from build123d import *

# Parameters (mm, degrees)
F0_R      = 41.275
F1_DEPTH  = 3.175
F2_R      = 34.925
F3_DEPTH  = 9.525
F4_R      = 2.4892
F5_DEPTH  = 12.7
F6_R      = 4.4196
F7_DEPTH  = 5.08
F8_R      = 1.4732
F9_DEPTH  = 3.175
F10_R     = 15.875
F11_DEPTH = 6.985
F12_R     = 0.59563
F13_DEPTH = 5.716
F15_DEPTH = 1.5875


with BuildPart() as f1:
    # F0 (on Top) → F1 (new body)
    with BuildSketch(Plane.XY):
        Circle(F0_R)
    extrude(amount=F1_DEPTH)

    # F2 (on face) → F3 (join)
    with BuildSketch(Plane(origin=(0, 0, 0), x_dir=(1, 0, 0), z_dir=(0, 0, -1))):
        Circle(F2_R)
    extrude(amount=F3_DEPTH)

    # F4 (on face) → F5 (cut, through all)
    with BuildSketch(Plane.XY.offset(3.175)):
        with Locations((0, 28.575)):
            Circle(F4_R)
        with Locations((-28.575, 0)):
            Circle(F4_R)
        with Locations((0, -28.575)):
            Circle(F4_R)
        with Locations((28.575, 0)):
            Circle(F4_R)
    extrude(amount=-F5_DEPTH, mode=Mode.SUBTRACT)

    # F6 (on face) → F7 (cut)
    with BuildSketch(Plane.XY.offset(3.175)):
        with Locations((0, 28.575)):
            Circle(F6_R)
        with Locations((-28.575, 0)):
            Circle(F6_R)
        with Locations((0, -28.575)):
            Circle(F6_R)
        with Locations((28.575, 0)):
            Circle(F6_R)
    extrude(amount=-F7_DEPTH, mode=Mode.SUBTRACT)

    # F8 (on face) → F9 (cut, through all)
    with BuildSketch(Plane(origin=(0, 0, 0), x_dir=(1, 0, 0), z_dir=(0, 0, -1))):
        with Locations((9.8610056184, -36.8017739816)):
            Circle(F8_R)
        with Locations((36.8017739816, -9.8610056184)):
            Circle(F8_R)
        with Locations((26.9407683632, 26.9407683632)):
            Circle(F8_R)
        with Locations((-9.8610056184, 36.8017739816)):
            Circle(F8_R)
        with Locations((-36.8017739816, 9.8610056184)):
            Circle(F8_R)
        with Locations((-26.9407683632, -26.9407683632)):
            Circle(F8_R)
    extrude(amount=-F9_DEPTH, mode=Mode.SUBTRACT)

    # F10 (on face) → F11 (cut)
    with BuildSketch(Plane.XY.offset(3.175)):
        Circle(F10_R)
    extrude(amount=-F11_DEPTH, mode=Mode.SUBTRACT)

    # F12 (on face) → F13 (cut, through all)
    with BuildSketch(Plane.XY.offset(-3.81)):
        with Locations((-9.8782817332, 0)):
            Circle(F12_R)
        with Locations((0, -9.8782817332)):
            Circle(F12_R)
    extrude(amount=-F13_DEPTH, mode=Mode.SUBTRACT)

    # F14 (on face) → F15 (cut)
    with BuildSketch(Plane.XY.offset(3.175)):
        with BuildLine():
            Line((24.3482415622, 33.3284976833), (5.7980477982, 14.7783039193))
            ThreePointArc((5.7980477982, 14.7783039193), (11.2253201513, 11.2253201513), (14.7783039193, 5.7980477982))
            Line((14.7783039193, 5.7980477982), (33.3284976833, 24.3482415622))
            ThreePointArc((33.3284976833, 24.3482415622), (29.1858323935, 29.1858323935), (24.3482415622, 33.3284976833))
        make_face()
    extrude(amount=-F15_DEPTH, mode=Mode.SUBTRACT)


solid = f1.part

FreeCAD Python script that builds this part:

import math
import FreeCAD as App
import Part
import Sketcher
from FreeCAD import Vector
Q = App.Units.Quantity

doc = App.newDocument("Part")
body = doc.addObject("PartDesign::Body", "Body")

# Sketch on XY plane
sketch1 = body.newObject("Sketcher::SketchObject", "Sketch")
sketch1.AttachmentSupport = (doc.getObject("XY_Plane"), [""])
sketch1.MapMode = "FlatFace"
sketch1.addGeometry(Part.Circle(Vector(0, 0, 0), Vector(0, 0, 1), 41.275), False)
sketch1.addConstraint([
    Sketcher.Constraint("Coincident", 0, 3, -1, 1),
    Sketcher.Constraint("Diameter", 0, Q("3.25 in")),
])
pad1 = body.newObject("PartDesign::Pad", "Pad")
pad1.Profile = sketch1
pad1.Length = Q("0.125 in")

# Sketch on XY plane
sketch2 = body.newObject("Sketcher::SketchObject", "Sketch001")
sketch2.AttachmentSupport = (doc.getObject("XY_Plane"), [""])
sketch2.MapMode = "FlatFace"
sketch2.addGeometry(Part.Circle(Vector(0, 0, 0), Vector(0, 0, 1), 34.925), False)
sketch2.addConstraint([
    Sketcher.Constraint("Coincident", 0, 3, -1, 1),
    Sketcher.Constraint("Diameter", 0, Q("2.75 in")),
])
pad2 = body.newObject("PartDesign::Pad", "Pad001")
pad2.Profile = sketch2
pad2.Length = Q("0.375 in")
pad2.Reversed = True

# Sketch on XY plane
sketch3 = body.newObject("Sketcher::SketchObject", "Sketch002")
sketch3.AttachmentSupport = (doc.getObject("XY_Plane"), [""])
sketch3.MapMode = "FlatFace"
sketch3.AttachmentOffset = App.Placement(Vector(0, 0, 0.125 * 25.4), App.Rotation())
sketch3.addGeometry([
    Part.Circle(Vector(0, 28.575, 0), Vector(0, 0, 1), 2.4892),
    Part.Circle(Vector(-28.575, 0, 0), Vector(0, 0, 1), 2.4892),
    Part.Circle(Vector(0, -28.575, 0), Vector(0, 0, 1), 2.4892),
    Part.Circle(Vector(28.575, 0, 0), Vector(0, 0, 1), 2.4892),
], False)
sketch3.addConstraint([
    Sketcher.Constraint("Equal", 0, 1),
    Sketcher.Constraint("Equal", 1, 2),
    Sketcher.Constraint("Equal", 2, 3),
    Sketcher.Constraint("Symmetric", 0, 3, 2, 3, -1, 1),
    Sketcher.Constraint("Symmetric", 1, 3, 3, 3, -1, 1),
    Sketcher.Constraint("PointOnObject", 0, 3, -2),
    Sketcher.Constraint("PointOnObject", 1, 3, -1),
    Sketcher.Constraint("Diameter", 0, Q("0.196 in")),
    Sketcher.Constraint("DistanceY", 2, 3, 0, 3, Q("2.25 in")),
    Sketcher.Constraint("DistanceX", 1, 3, 3, 3, Q("2.25 in")),
])
pocket1 = body.newObject("PartDesign::Pocket", "Pocket")
pocket1.Profile = sketch3
pocket1.Type = "ThroughAll"

# Sketch on XY plane
sketch4 = body.newObject("Sketcher::SketchObject", "Sketch003")
sketch4.AttachmentSupport = (doc.getObject("XY_Plane"), [""])
sketch4.MapMode = "FlatFace"
sketch4.AttachmentOffset = App.Placement(Vector(0, 0, 0.125 * 25.4), App.Rotation())
sketch4.addGeometry([
    Part.Circle(Vector(0, 28.575, 0), Vector(0, 0, 1), 4.4196),
    Part.Circle(Vector(-28.575, 0, 0), Vector(0, 0, 1), 4.4196),
    Part.Circle(Vector(0, -28.575, 0), Vector(0, 0, 1), 4.4196),
    Part.Circle(Vector(28.575, 0, 0), Vector(0, 0, 1), 4.4196),
], False)
sketch4.addConstraint([
    Sketcher.Constraint("Equal", 0, 1),
    Sketcher.Constraint("Equal", 1, 2),
    Sketcher.Constraint("Equal", 2, 3),
    Sketcher.Constraint("Symmetric", 0, 3, 2, 3, -1, 1),
    Sketcher.Constraint("Symmetric", 1, 3, 3, 3, -1, 1),
    Sketcher.Constraint("PointOnObject", 0, 3, -2),
    Sketcher.Constraint("PointOnObject", 1, 3, -1),
    Sketcher.Constraint("Diameter", 0, Q("0.348 in")),
    Sketcher.Constraint("DistanceY", 2, 3, 0, 3, Q("2.25 in")),
    Sketcher.Constraint("DistanceX", 1, 3, 3, 3, Q("2.25 in")),
])
pocket2 = body.newObject("PartDesign::Pocket", "Pocket001")
pocket2.Profile = sketch4
pocket2.Length = Q("0.2 in")

# Sketch on XY plane
sketch5 = body.newObject("Sketcher::SketchObject", "Sketch004")
sketch5.AttachmentSupport = (doc.getObject("XY_Plane"), [""])
sketch5.MapMode = "FlatFace"
sketch5.addGeometry([
    Part.Circle(Vector(9.861006, 36.801774, 0), Vector(0, 0, 1), 1.4732),  # 0
    Part.Circle(Vector(36.801774, 9.861006, 0), Vector(0, 0, 1), 1.4732),  # 1
    Part.Circle(Vector(26.940768, -26.940768, 0), Vector(0, 0, 1), 1.4732),  # 2
    Part.Circle(Vector(-9.861006, -36.801774, 0), Vector(0, 0, 1), 1.4732),  # 3
    Part.Circle(Vector(-36.801774, -9.861006, 0), Vector(0, 0, 1), 1.4732),  # 4
    Part.Circle(Vector(-26.940768, 26.940768, 0), Vector(0, 0, 1), 1.4732),  # 5
], False)
sketch5.addConstraint([
    Sketcher.Constraint("Equal", 0, 1),
    Sketcher.Constraint("Equal", 1, 2),
    Sketcher.Constraint("Equal", 2, 3),
    Sketcher.Constraint("Equal", 3, 4),
    Sketcher.Constraint("Equal", 4, 5),
    Sketcher.Constraint("Symmetric", 0, 3, 3, 3, -1, 1),
    Sketcher.Constraint("Symmetric", 1, 3, 4, 3, -1, 1),
    Sketcher.Constraint("Symmetric", 2, 3, 5, 3, -1, 1),
    Sketcher.Constraint("Diameter", 0, Q("0.116 in")),
    Sketcher.Constraint("DistanceX", -1, 1, 2, 3, 26.940768),
    Sketcher.Constraint("DistanceY", 2, 3, -1, 1, 26.940768),
    Sketcher.Constraint("DistanceX", 0, 3, 1, 3, 26.940768),
    Sketcher.Constraint("DistanceY", 1, 3, 0, 3, 26.940768),
    Sketcher.Constraint("DistanceX", 3, 3, 1, 3, 46.66278),
    Sketcher.Constraint("DistanceY", 3, 3, 1, 3, 46.66278),
])
pocket3 = body.newObject("PartDesign::Pocket", "Pocket002")
pocket3.Profile = sketch5
pocket3.Type = "ThroughAll"
pocket3.Reversed = True

# Sketch on XY plane
sketch6 = body.newObject("Sketcher::SketchObject", "Sketch005")
sketch6.AttachmentSupport = (doc.getObject("XY_Plane"), [""])
sketch6.MapMode = "FlatFace"
sketch6.AttachmentOffset = App.Placement(Vector(0, 0, 0.125 * 25.4), App.Rotation())
sketch6.addGeometry(Part.Circle(Vector(0, 0, 0), Vector(0, 0, 1), 15.875), False)
sketch6.addConstraint([
    Sketcher.Constraint("Coincident", 0, 3, -1, 1),
    Sketcher.Constraint("Diameter", 0, Q("1.25 in")),
])
pocket4 = body.newObject("PartDesign::Pocket", "Pocket003")
pocket4.Profile = sketch6
pocket4.Length = Q("0.275 in")

# Sketch on XY plane
sketch7 = body.newObject("Sketcher::SketchObject", "Sketch006")
sketch7.AttachmentSupport = (doc.getObject("XY_Plane"), [""])
sketch7.MapMode = "FlatFace"
sketch7.AttachmentOffset = App.Placement(Vector(0, 0, -0.15 * 25.4), App.Rotation())
sketch7.addGeometry([
    Part.Circle(Vector(-9.878282, 0, 0), Vector(0, 0, 1), 0.59563),
    Part.Circle(Vector(0, -9.878282, 0), Vector(0, 0, 1), 0.59563),
], False)
sketch7.addConstraint([
    Sketcher.Constraint("Equal", 0, 1),
    Sketcher.Constraint("PointOnObject", 0, 3, -1),
    Sketcher.Constraint("PointOnObject", 1, 3, -2),
    Sketcher.Constraint("Diameter", 0, Q("0.0469 in")),
    Sketcher.Constraint("DistanceX", 0, 3, -1, 1, 9.878282),
    Sketcher.Constraint("DistanceY", 1, 3, -1, 1, 9.878282),
])
pocket5 = body.newObject("PartDesign::Pocket", "Pocket004")
pocket5.Profile = sketch7
pocket5.Type = "ThroughAll"

# Sketch on XY plane
sketch8 = body.newObject("Sketcher::SketchObject", "Sketch007")
sketch8.AttachmentSupport = (doc.getObject("XY_Plane"), [""])
sketch8.MapMode = "FlatFace"
sketch8.AttachmentOffset = App.Placement(Vector(0, 0, 0.125 * 25.4), App.Rotation())
sketch8.addGeometry([
    Part.LineSegment(Vector(24.348242, 33.328498, 0), Vector(5.798048, 14.778304, 0)),
    Part.ArcOfCircle(Part.Circle(Vector(0, 0, 0), Vector(0, 0, 1), 15.875), math.radians(21.421822), math.radians(68.578178)),
    Part.LineSegment(Vector(14.778304, 5.798048, 0), Vector(33.328498, 24.348242, 0)),
    Part.ArcOfCircle(Part.Circle(Vector(0, 0, 0), Vector(0, 0, 1), 41.275), math.radians(36.150117), math.radians(53.849883)),
], False)
sketch8.addConstraint([
    Sketcher.Constraint("Coincident", 0, 2, 1, 2),
    Sketcher.Constraint("Coincident", 1, 1, 2, 1),
    Sketcher.Constraint("Coincident", 2, 2, 3, 1),
    Sketcher.Constraint("Coincident", 3, 2, 0, 1),
    Sketcher.Constraint("Coincident", 1, 3, -1, 1),
    Sketcher.Constraint("Coincident", 3, 3, -1, 1),
    Sketcher.Constraint("Parallel", 0, 2),
    Sketcher.Constraint("Equal", 0, 2),
    Sketcher.Constraint("Angle", 0, Q("-135 deg")),
    Sketcher.Constraint("Radius", 1, Q("0.625 in")),
    Sketcher.Constraint("Radius", 3, Q("1.625 in")),
    Sketcher.Constraint("DistanceY", -1, 1, 2, 2, 24.348242),
])
pocket6 = body.newObject("PartDesign::Pocket", "Pocket005")
pocket6.Profile = sketch8
pocket6.Length = Q("0.0625 in")

doc.recompute()
